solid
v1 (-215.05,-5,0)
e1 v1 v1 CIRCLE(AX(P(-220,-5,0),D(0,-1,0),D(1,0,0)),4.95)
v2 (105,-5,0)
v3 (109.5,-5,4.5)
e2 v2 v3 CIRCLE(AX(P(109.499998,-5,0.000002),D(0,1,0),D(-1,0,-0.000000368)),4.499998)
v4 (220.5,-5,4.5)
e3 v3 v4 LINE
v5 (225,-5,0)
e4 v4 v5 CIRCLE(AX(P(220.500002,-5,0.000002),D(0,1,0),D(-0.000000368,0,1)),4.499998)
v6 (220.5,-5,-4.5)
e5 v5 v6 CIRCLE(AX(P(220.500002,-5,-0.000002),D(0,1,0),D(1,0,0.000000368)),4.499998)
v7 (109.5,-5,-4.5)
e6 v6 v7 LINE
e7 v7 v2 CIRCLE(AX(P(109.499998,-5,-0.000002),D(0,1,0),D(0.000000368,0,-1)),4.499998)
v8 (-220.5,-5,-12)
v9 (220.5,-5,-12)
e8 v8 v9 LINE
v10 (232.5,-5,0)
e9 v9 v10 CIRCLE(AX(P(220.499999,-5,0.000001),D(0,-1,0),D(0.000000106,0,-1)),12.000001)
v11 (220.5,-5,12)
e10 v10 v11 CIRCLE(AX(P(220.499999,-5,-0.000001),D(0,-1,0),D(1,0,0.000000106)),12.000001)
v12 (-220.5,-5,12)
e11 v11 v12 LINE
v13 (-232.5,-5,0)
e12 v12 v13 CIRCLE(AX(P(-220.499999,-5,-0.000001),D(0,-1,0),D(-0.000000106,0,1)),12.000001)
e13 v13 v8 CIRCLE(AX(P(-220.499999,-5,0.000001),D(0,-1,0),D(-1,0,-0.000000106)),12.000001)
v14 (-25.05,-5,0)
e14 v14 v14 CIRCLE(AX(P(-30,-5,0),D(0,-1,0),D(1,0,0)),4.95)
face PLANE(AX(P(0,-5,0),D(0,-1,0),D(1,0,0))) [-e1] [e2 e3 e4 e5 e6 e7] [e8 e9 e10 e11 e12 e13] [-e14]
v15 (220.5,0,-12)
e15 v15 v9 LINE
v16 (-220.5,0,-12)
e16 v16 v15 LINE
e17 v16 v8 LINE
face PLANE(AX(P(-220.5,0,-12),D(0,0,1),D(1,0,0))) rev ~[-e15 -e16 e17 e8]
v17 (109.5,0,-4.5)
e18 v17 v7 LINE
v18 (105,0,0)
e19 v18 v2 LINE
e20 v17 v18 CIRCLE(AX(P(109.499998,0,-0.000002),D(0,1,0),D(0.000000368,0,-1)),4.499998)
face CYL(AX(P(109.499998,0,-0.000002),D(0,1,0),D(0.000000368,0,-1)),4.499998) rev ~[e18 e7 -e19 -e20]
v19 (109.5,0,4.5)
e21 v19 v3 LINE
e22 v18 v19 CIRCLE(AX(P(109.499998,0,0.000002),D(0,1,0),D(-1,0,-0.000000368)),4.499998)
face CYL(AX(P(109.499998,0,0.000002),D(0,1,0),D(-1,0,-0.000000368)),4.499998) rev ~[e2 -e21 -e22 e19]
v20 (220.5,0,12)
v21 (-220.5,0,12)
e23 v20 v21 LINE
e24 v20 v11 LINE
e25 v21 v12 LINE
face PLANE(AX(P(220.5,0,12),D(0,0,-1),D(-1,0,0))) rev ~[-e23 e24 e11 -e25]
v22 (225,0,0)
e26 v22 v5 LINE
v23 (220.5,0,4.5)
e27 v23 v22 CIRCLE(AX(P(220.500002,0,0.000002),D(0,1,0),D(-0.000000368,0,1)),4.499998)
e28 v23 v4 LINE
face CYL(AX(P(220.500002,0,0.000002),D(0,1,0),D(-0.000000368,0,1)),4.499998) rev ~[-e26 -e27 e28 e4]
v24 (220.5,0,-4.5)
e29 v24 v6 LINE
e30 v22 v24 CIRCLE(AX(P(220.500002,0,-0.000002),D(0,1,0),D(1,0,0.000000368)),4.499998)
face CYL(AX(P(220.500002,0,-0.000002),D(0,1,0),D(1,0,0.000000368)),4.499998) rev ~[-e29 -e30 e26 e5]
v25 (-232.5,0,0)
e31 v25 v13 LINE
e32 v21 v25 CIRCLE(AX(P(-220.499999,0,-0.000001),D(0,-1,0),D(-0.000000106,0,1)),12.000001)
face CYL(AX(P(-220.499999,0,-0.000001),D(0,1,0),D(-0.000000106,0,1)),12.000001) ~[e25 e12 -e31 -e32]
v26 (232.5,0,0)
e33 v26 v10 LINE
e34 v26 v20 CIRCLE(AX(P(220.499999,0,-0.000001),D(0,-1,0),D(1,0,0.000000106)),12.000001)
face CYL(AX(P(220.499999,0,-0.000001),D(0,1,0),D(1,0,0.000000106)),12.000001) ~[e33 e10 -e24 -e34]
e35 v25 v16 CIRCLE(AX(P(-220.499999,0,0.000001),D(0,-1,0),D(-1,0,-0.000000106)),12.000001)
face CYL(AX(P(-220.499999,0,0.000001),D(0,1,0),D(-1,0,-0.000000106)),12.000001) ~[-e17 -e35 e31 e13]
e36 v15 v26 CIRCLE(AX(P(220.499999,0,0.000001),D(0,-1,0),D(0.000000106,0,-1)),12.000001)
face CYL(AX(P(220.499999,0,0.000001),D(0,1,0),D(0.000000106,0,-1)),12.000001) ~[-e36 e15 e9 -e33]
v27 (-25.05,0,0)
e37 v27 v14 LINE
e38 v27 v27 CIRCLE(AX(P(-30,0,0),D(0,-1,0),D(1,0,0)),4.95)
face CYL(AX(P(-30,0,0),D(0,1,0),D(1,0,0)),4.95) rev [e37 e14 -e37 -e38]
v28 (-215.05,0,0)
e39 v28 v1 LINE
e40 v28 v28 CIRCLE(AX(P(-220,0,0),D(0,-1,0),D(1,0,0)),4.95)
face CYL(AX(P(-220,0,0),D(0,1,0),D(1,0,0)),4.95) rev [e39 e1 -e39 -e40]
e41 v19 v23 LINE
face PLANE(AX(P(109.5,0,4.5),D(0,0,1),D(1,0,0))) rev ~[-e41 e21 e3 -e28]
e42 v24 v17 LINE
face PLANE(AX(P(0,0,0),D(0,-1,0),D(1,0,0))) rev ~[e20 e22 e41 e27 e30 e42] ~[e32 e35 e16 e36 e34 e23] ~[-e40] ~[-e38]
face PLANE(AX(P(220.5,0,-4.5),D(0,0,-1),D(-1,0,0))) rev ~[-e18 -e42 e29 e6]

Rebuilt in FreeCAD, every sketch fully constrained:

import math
import FreeCAD as App
import Part
import Sketcher
from FreeCAD import Vector

doc = App.newDocument("Part")
body = doc.addObject("PartDesign::Body", "Body")

sketch1 = body.newObject("Sketcher::SketchObject", "Sketch")
sketch1.AttachmentSupport = (doc.getObject("XZ_Plane"), [""])
sketch1.MapMode = "FlatFace"
sketch1.addGeometry([
    Part.LineSegment(Vector(-220.5, -12, 0), Vector(220.5, -12, 0)),
    Part.ArcOfCircle(Part.Circle(Vector(220.5, 0, 0), Vector(0, 0, 1), 12), math.radians(-90), math.radians(0)),
    Part.ArcOfCircle(Part.Circle(Vector(220.5, 0, 0), Vector(0, 0, 1), 12), math.radians(0), math.radians(90)),
    Part.LineSegment(Vector(220.5, 12, 0), Vector(-220.5, 12, 0)),
    Part.ArcOfCircle(Part.Circle(Vector(-220.5, 0, 0), Vector(0, 0, 1), 12), math.radians(90), math.radians(180)),
    Part.ArcOfCircle(Part.Circle(Vector(-220.5, 0, 0), Vector(0, 0, 1), 12), math.radians(-180), math.radians(-90)),
    Part.ArcOfCircle(Part.Circle(Vector(220.5, 0, 0), Vector(0, 0, 1), 4.5), math.radians(0), math.radians(90)),
    Part.ArcOfCircle(Part.Circle(Vector(220.5, 0, 0), Vector(0, 0, 1), 4.5), math.radians(-90), math.radians(0)),
    Part.LineSegment(Vector(220.5, -4.5, 0), Vector(109.5, -4.5, 0)),
    Part.ArcOfCircle(Part.Circle(Vector(109.5, 0, 0), Vector(0, 0, 1), 4.5), math.radians(180), math.radians(270)),
    Part.ArcOfCircle(Part.Circle(Vector(109.5, 0, 0), Vector(0, 0, 1), 4.5), math.radians(90), math.radians(180)),
    Part.LineSegment(Vector(109.5, 4.5, 0), Vector(220.5, 4.5, 0)),
    Part.Circle(Vector(-220, 0, 0), Vector(0, 0, 1), 5),
    Part.Circle(Vector(-30, 0, 0), Vector(0, 0, 1), 5),
], False)
sketch1.addConstraint([
    Sketcher.Constraint("Tangent", 0, 2, 1, 1),
    Sketcher.Constraint("Tangent", 1, 2, 2, 1),
    Sketcher.Constraint("Tangent", 2, 2, 3, 1),
    Sketcher.Constraint("Tangent", 3, 2, 4, 1),
    Sketcher.Constraint("Tangent", 4, 2, 5, 1),
    Sketcher.Constraint("Tangent", 5, 2, 0, 1),
    Sketcher.Constraint("Tangent", 6, 1, 7, 2),
    Sketcher.Constraint("Tangent", 7, 1, 8, 1),
    Sketcher.Constraint("Tangent", 8, 2, 9, 2),
    Sketcher.Constraint("Tangent", 9, 1, 10, 2),
    Sketcher.Constraint("Tangent", 10, 1, 11, 1),
    Sketcher.Constraint("Tangent", 11, 2, 6, 2),
    Sketcher.Constraint("Horizontal", 0),
    Sketcher.Constraint("Horizontal", 3),
    Sketcher.Constraint("Horizontal", 8),
    Sketcher.Constraint("Horizontal", 11),
    Sketcher.Constraint("Coincident", 6, 3, 1, 3),
    Sketcher.Constraint("Equal", 1, 2),
    Sketcher.Constraint("Equal", 2, 4),
    Sketcher.Constraint("Equal", 6, 7),
    Sketcher.Constraint("Equal", 7, 9),
    Sketcher.Constraint("Equal", 12, 13),
    Sketcher.Constraint("Symmetric", 1, 3, 4, 3, -1, 1),
    Sketcher.Constraint("PointOnObject", 12, 3, -1),
    Sketcher.Constraint("PointOnObject", 13, 3, -1),
    Sketcher.Constraint("PointOnObject", 1, 2, -1),
    Sketcher.Constraint("PointOnObject", 4, 2, -1),
    Sketcher.Constraint("PointOnObject", 6, 1, -1),
    Sketcher.Constraint("PointOnObject", 9, 1, -1),
    Sketcher.Constraint("Radius", 1, 12.000001),
    Sketcher.Constraint("Diameter", 12, 9.9),
    Sketcher.Constraint("Radius", 6, 4.499998),
    Sketcher.Constraint("DistanceX", 0, 1, 0, 2, 441.0),
    Sketcher.Constraint("DistanceX", 8, 2, 8, 1, 111.0),
    Sketcher.Constraint("DistanceX", 12, 3, -1, 1, 220.0),
    Sketcher.Constraint("DistanceX", 13, 3, -1, 1, 30.0),
])
pad1 = body.newObject("PartDesign::Pad", "Pad")
pad1.Profile = sketch1
pad1.Length = 5

doc.recompute()
